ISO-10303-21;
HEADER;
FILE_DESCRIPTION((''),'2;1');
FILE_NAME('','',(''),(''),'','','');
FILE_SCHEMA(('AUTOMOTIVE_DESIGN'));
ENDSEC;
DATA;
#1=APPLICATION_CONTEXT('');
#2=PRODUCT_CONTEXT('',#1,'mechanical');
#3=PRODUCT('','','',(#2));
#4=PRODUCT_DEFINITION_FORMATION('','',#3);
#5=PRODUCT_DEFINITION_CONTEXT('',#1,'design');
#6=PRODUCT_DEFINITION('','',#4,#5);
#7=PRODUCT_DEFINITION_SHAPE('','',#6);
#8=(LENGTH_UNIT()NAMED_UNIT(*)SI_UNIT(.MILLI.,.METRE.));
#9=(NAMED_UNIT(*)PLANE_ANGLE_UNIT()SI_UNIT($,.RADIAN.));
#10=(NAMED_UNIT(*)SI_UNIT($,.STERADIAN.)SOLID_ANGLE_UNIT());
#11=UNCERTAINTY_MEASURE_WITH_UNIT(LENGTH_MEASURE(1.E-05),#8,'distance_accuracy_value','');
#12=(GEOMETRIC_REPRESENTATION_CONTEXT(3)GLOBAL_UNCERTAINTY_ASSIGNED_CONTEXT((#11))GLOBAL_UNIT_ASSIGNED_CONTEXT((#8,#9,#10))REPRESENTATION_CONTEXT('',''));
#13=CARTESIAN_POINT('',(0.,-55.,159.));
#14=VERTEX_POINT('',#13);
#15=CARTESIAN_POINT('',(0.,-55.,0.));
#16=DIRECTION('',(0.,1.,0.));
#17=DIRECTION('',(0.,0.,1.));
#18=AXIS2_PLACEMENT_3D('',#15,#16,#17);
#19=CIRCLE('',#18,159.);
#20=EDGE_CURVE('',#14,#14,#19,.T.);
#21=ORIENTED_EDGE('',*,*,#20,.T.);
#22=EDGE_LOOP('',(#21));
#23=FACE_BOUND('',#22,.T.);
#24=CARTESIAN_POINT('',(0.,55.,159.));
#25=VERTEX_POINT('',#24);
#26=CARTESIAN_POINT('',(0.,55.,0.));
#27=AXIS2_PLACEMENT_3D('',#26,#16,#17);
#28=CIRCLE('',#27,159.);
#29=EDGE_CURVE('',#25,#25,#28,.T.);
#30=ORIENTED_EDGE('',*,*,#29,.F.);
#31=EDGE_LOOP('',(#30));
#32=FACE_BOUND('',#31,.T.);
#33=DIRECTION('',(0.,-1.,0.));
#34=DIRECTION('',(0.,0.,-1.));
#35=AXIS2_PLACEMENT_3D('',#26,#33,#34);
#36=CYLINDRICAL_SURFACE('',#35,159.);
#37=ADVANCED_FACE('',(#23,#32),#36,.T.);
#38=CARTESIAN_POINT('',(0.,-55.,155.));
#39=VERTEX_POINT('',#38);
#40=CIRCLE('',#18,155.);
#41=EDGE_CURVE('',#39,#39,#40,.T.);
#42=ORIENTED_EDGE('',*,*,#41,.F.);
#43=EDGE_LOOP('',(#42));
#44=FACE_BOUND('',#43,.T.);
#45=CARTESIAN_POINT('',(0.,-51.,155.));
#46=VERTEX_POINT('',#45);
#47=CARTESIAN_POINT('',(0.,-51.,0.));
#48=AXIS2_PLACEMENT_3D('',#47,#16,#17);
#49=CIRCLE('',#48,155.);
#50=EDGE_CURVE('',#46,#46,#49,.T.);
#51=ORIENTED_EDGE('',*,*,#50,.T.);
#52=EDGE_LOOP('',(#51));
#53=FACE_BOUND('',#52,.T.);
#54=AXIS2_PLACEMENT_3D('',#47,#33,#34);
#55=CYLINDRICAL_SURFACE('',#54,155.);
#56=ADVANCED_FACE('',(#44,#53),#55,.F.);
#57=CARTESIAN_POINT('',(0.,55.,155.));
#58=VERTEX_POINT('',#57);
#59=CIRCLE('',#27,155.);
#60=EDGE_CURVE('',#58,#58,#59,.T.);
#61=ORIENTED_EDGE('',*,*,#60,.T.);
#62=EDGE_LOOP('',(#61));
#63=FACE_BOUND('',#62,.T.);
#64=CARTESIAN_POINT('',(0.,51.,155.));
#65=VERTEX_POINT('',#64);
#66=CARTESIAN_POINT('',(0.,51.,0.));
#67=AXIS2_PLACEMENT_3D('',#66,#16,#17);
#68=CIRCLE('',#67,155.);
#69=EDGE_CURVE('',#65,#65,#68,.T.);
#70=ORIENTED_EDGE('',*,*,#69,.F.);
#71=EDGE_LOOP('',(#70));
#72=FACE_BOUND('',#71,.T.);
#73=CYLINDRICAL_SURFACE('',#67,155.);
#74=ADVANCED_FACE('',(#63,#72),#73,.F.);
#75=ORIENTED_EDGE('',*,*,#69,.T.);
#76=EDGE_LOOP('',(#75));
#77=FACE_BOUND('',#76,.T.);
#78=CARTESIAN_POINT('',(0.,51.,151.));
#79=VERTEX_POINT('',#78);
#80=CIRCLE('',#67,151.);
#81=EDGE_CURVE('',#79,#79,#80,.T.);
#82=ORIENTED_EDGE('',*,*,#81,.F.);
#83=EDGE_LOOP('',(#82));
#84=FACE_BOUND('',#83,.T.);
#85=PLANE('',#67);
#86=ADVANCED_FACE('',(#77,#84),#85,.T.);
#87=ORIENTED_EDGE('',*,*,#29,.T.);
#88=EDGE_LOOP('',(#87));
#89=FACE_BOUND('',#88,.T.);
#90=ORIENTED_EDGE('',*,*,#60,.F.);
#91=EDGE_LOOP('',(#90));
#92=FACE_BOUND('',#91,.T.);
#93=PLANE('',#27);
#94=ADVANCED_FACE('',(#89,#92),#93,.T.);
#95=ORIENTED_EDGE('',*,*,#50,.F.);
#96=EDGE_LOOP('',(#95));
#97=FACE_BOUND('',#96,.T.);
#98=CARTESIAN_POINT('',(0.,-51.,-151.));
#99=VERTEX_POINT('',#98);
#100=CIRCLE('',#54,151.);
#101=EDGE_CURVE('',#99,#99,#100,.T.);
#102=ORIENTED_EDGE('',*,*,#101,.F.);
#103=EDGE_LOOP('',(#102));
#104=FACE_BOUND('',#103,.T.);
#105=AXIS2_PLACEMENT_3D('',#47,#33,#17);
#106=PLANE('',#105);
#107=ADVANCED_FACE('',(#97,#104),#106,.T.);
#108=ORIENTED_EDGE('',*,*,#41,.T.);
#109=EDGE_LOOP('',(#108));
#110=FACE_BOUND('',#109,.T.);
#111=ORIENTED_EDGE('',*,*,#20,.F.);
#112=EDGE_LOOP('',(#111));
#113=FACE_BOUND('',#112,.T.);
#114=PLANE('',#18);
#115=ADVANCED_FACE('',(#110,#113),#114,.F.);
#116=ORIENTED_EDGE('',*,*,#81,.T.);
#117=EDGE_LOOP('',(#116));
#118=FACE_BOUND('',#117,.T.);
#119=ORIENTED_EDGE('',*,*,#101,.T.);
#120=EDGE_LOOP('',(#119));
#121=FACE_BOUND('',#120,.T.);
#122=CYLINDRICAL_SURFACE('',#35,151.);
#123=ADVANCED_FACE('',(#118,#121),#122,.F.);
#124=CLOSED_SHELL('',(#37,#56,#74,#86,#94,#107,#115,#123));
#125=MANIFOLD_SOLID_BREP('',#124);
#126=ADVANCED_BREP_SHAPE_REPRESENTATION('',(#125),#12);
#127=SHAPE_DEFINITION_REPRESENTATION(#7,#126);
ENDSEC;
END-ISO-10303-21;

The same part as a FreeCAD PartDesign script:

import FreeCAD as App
import Part
import Sketcher
Q = App.Units.Quantity

doc = App.newDocument("Part")
body = doc.addObject("PartDesign::Body", "Body")

# Sketch on XZ plane
sketch1 = doc.addObject("Sketcher::SketchObject", "Sketch")
body.addObject(sketch1)
sketch1.AttachmentSupport = (doc.XZ_Plane, [""])
sketch1.MapMode = "FlatFace"
sketch1.addGeometry([
    Part.Circle(App.Vector(0, 0, 0), App.Vector(0, 0, 1), 159),
    Part.Circle(App.Vector(0, 0, 0), App.Vector(0, 0, 1), 151),
], False)
sketch1.addConstraint([
    Sketcher.Constraint("Coincident", 0, 3, -1, 1),
    Sketcher.Constraint("Coincident", 1, 3, -1, 1),
    Sketcher.Constraint("Diameter", 0, Q("318 mm")),
    Sketcher.Constraint("Diameter", 1, Q("302 mm")),
])
pad1 = doc.addObject("PartDesign::Pad", "Pad")
body.addObject(pad1)
pad1.Profile = sketch1
pad1.Length = 110
pad1.Midplane = True

# Sketch on XZ plane
sketch2 = doc.addObject("Sketcher::SketchObject", "Sketch001")
body.addObject(sketch2)
sketch2.AttachmentSupport = (doc.XZ_Plane, [""])
sketch2.MapMode = "FlatFace"
sketch2.AttachmentOffset = App.Placement(App.Vector(0, 0, -55), App.Rotation())
sketch2.addGeometry(Part.Circle(App.Vector(0, 0, 0), App.Vector(0, 0, 1), 155), False)
sketch2.addConstraint([
    Sketcher.Constraint("Coincident", 0, 3, -1, 1),
    Sketcher.Constraint("Diameter", 0, Q("310 mm")),
])
pocket1 = doc.addObject("PartDesign::Pocket", "Pocket")
body.addObject(pocket1)
pocket1.Profile = sketch2
pocket1.Length = 4
pocket1.Reversed = True
doc.recompute()

mirrored = doc.addObject("PartDesign::Mirrored", "Mirrored")
body.addObject(mirrored)
mirrored.Originals = [pocket1]
mirrored.MirrorPlane = (doc.XZ_Plane, [""])
body.Tip = mirrored

doc.recompute()
